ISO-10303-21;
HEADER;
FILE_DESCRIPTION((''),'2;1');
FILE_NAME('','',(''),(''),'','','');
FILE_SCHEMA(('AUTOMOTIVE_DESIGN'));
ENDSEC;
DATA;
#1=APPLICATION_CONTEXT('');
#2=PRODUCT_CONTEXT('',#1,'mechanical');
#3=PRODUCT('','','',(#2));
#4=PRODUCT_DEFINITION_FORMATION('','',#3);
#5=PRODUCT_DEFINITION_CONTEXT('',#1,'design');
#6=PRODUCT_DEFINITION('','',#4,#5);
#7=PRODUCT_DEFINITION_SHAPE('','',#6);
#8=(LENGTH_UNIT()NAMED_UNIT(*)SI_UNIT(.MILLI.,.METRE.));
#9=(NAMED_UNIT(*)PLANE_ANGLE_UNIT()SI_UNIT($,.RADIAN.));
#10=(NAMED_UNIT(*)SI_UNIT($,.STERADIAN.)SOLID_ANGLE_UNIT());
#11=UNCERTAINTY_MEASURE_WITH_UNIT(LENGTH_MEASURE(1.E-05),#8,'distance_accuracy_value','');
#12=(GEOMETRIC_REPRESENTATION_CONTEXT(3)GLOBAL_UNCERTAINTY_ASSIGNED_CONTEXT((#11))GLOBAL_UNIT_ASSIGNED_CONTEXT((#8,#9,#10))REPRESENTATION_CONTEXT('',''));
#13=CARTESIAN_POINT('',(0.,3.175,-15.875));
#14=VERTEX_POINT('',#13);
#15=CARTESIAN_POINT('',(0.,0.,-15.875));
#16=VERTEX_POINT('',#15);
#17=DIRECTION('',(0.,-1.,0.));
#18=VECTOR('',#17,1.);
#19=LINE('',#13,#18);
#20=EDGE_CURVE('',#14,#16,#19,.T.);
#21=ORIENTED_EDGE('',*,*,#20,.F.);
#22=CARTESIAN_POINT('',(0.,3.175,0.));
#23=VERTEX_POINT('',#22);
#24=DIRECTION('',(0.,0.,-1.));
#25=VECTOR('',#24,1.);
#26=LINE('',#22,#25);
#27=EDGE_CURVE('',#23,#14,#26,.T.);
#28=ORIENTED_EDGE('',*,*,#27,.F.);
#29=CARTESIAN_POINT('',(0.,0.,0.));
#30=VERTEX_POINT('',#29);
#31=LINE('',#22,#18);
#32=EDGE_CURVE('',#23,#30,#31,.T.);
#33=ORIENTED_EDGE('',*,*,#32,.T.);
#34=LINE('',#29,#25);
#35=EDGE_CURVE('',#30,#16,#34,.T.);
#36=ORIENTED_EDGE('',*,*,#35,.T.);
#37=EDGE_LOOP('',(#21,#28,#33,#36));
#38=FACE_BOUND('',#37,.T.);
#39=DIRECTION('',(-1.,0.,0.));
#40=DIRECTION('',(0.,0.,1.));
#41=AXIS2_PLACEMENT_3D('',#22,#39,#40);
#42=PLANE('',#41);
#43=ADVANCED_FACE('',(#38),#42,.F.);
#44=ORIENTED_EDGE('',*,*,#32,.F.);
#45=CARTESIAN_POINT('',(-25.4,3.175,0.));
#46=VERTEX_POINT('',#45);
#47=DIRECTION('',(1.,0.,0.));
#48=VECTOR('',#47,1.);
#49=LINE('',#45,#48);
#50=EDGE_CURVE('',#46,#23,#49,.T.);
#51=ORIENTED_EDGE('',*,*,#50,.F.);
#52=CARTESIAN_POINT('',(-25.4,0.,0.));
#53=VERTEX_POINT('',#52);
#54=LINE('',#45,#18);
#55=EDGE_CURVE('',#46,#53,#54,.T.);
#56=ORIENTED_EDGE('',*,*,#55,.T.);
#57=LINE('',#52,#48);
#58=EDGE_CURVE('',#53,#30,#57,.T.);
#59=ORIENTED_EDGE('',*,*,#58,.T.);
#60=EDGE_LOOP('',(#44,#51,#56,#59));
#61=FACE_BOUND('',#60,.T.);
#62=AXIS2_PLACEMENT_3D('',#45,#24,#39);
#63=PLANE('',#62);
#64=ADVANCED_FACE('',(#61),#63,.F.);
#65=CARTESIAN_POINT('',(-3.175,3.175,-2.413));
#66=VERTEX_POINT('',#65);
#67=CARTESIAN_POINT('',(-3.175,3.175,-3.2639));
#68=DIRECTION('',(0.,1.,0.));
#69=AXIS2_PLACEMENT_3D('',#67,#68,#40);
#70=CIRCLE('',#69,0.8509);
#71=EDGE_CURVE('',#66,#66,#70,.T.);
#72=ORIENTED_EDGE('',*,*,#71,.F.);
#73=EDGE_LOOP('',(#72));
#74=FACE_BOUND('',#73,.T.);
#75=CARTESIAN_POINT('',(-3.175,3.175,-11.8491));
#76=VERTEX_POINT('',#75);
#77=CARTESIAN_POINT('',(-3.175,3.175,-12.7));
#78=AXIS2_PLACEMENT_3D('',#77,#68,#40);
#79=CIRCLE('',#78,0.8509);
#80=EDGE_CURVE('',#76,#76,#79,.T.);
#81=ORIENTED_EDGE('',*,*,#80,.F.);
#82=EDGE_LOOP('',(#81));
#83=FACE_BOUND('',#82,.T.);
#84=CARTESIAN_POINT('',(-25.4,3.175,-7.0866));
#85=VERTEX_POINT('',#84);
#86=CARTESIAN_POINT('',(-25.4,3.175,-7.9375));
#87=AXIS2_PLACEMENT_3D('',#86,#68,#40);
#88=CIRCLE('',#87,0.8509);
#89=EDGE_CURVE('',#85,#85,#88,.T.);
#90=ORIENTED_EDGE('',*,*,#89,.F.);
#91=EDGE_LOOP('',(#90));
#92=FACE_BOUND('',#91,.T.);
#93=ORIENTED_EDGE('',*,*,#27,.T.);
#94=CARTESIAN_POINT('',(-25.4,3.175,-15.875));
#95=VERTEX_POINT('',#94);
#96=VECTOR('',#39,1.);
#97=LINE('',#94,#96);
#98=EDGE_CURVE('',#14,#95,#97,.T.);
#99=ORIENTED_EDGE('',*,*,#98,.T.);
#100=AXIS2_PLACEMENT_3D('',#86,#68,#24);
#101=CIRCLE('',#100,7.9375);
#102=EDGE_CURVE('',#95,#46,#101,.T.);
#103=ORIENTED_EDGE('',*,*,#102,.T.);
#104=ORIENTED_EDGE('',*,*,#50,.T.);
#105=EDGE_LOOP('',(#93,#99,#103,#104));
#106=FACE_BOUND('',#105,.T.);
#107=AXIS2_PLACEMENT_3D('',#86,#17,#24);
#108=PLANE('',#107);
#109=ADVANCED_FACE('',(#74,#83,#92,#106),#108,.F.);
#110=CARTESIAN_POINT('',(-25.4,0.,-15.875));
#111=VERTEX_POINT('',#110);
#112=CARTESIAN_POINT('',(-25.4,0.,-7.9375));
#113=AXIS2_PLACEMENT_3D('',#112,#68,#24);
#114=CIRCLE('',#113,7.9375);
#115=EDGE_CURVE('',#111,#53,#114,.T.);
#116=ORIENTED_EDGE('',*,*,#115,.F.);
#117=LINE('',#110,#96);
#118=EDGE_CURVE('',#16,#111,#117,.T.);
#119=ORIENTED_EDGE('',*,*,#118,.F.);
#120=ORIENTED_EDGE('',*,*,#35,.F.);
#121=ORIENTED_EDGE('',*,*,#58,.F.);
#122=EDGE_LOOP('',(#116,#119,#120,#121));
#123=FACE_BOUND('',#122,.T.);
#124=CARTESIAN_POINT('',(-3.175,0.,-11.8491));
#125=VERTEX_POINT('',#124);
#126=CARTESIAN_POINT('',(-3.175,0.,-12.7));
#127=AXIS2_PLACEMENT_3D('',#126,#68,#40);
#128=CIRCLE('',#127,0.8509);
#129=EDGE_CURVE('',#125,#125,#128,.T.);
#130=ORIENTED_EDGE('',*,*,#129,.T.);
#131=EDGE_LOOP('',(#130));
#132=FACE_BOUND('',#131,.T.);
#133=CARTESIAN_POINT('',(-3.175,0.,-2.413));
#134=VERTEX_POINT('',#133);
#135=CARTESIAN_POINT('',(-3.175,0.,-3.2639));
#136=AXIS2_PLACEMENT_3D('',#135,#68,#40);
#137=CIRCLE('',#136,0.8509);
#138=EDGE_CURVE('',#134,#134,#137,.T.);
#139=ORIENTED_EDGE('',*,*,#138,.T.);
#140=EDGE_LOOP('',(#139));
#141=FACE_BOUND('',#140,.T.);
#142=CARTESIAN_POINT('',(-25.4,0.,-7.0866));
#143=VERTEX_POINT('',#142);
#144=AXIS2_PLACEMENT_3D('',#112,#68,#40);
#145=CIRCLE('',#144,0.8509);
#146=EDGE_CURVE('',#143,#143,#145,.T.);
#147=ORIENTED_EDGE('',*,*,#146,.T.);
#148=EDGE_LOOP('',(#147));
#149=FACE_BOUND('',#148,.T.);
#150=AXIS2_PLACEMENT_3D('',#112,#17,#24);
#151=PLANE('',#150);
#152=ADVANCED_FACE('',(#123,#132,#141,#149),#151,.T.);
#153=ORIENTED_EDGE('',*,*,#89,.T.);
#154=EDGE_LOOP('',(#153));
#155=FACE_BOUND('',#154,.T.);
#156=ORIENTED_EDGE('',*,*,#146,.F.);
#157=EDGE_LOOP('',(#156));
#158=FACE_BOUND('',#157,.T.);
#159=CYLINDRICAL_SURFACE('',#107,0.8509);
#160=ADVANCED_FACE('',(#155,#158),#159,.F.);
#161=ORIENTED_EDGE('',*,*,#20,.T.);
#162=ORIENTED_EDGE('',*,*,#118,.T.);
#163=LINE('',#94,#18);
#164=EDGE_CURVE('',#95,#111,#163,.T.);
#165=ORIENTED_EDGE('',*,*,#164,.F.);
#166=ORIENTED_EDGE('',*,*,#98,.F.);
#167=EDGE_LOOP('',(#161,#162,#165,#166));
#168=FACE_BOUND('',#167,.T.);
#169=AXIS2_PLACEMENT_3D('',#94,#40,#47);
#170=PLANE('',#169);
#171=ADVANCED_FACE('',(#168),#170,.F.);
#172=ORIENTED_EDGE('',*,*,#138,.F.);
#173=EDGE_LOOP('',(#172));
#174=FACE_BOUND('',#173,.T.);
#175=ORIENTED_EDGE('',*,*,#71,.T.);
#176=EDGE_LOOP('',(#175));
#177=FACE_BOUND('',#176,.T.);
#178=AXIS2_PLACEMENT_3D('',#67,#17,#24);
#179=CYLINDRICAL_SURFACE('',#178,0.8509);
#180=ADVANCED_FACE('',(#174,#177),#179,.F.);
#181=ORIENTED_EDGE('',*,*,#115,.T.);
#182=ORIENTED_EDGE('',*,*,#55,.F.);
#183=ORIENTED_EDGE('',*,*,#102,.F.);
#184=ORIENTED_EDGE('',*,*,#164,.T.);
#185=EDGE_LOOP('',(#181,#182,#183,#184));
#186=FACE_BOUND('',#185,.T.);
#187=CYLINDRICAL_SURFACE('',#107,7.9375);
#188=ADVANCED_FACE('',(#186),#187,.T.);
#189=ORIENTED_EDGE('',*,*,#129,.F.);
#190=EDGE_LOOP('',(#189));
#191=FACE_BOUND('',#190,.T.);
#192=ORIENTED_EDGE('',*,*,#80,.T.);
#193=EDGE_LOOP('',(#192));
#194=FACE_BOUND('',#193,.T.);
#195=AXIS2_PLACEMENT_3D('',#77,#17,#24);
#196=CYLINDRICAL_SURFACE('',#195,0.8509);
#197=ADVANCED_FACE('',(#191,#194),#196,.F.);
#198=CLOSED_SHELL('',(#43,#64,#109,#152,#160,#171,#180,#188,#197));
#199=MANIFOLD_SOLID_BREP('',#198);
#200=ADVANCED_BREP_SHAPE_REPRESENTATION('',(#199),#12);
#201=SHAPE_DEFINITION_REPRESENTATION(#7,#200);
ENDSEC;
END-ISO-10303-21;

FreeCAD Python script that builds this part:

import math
import FreeCAD as App
import Part
import Sketcher
Q = App.Units.Quantity

doc = App.newDocument("Part")
params = doc.addObject("Spreadsheet::Sheet", "Params")
for row, (alias, value) in enumerate([
    ("sketch1_width", "1 in"),
    ("sketch1_diameter", "0.067 in"),
    ("sketch1_radius", "0.3125 in"),
    ("pad1_length", "0.125 in"),
], start=1):
    params.set(f"A{row}", alias)
    params.set(f"B{row}", "=" + value)
    params.setAlias(f"B{row}", alias)

body = doc.addObject("PartDesign::Body", "Body")

sketch1 = doc.addObject("Sketcher::SketchObject", "Sketch")
body.addObject(sketch1)
sketch1.AttachmentSupport = (doc.XZ_Plane, [""])
sketch1.MapMode = "FlatFace"
sketch1.addGeometry(Part.LineSegment(App.Vector(0, 0, 0), App.Vector(0, -15.9, 0)), False)
sketch1.addGeometry(Part.LineSegment(App.Vector(0, -15.9, 0), App.Vector(-25.4, -15.9, 0)), False)
sketch1.addGeometry(Part.ArcOfCircle(Part.Circle(App.Vector(-25.4, -7.9, 0), App.Vector(0, 0, 1), 7.9), math.radians(90), math.radians(270)), False)
sketch1.addGeometry(Part.LineSegment(App.Vector(-25.4, 0, 0), App.Vector(0, 0, 0)), False)
sketch1.addGeometry(Part.Circle(App.Vector(-25.4, -7.9, 0), App.Vector(0, 0, 1), 0.9), False)
sketch1.addGeometry(Part.Circle(App.Vector(-3.2, -3.3, 0), App.Vector(0, 0, 1), 0.9), False)
sketch1.addGeometry(Part.Circle(App.Vector(-3.2, -12.7, 0), App.Vector(0, 0, 1), 0.9), False)
sketch1.addConstraint(Sketcher.Constraint("Coincident", 0, 2, 1, 1))
sketch1.addConstraint(Sketcher.Constraint("Tangent", 1, 2, 2, 2))
sketch1.addConstraint(Sketcher.Constraint("Tangent", 2, 1, 3, 1))
sketch1.addConstraint(Sketcher.Constraint("Coincident", 3, 2, 0, 1))
sketch1.addConstraint(Sketcher.Constraint("Vertical", 0))
sketch1.addConstraint(Sketcher.Constraint("Horizontal", 1))
sketch1.addConstraint(Sketcher.Constraint("Horizontal", 3))
sketch1.addConstraint(Sketcher.Constraint("Coincident", 3, 2, -1, 1))
sketch1.addConstraint(Sketcher.Constraint("Coincident", 4, 3, 2, 3))
sketch1.addConstraint(Sketcher.Constraint("Equal", 4, 5))
sketch1.addConstraint(Sketcher.Constraint("Equal", 5, 6))
sketch1.addConstraint(Sketcher.Constraint("Vertical", 5, 3, 6, 3))
sketch1.addConstraint(Sketcher.Constraint("DistanceX", 1, 2, 1, 1, Q("1 in")))
sketch1.addConstraint(Sketcher.Constraint("Diameter", 4, Q("0.067 in")))
sketch1.addConstraint(Sketcher.Constraint("Radius", 2, Q("0.3125 in")))
sketch1.addConstraint(Sketcher.Constraint("DistanceY", 6, 3, -1, 1, Q("0.5 in")))
sketch1.addConstraint(Sketcher.Constraint("DistanceX", 5, 3, -1, 1, Q("0.125 in")))
sketch1.addConstraint(Sketcher.Constraint("DistanceY", 2, 3, 5, 3, Q("0.184 in")))
sketch1.setExpression("Constraints[12]", "Params.sketch1_width")
sketch1.setExpression("Constraints[13]", "Params.sketch1_diameter")
sketch1.setExpression("Constraints[14]", "Params.sketch1_radius")
pad1 = doc.addObject("PartDesign::Pad", "Pad")
body.addObject(pad1)
pad1.Profile = sketch1
pad1.setExpression("Length", "Params.pad1_length")
pad1.Reversed = True

doc.recompute()
